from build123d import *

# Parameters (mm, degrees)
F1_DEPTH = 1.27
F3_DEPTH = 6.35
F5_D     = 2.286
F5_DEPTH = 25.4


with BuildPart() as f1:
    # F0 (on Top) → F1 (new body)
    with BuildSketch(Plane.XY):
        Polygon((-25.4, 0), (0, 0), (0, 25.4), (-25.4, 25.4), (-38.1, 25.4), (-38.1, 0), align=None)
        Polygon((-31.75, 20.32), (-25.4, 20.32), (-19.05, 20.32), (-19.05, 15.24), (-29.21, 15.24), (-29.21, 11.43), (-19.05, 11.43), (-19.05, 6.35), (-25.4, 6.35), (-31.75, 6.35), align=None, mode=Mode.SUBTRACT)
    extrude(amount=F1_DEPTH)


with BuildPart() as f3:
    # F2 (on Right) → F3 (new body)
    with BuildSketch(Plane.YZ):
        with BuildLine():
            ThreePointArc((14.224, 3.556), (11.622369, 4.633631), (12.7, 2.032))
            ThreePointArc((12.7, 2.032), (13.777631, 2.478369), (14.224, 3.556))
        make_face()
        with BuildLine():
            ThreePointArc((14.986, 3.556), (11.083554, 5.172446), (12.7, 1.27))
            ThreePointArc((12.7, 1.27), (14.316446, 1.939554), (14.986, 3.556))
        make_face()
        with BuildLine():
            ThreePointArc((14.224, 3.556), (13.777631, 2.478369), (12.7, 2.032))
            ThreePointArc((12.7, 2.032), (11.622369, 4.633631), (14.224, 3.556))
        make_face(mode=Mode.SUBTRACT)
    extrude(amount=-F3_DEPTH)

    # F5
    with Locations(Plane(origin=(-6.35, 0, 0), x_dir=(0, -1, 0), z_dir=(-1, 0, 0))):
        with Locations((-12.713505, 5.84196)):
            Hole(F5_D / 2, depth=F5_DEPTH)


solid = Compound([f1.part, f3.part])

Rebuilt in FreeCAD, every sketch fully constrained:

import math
import FreeCAD as App
import Part
import Sketcher

V = App.Vector
Q = App.Units.Quantity

doc = App.newDocument("Part")
body = doc.addObject("PartDesign::Body", "Body")

# Sketch on XY plane
sketch1 = doc.addObject("Sketcher::SketchObject", "Sketch")
body.addObject(sketch1)
sketch1.AttachmentSupport = (doc.XY_Plane, [""])
sketch1.MapMode = "FlatFace"
sketch1.addGeometry([
    Part.LineSegment(V(0, 0, 0), V(0, 25.4, 0)),  # 0
    Part.LineSegment(V(0, 25.4, 0), V(-38.1, 25.4, 0)),  # 1
    Part.LineSegment(V(-38.1, 25.4, 0), V(-38.1, 0, 0)),  # 2
    Part.LineSegment(V(-38.1, 0, 0), V(0, 0, 0)),  # 3
    Part.LineSegment(V(-31.8, 6.3, 0), V(-31.8, 20.3, 0)),  # 4
    Part.LineSegment(V(-31.8, 20.3, 0), V(-19.1, 20.3, 0)),  # 5
    Part.LineSegment(V(-19.1, 20.3, 0), V(-19.1, 15.2, 0)),  # 6
    Part.LineSegment(V(-19.1, 15.2, 0), V(-29.2, 15.2, 0)),  # 7
    Part.LineSegment(V(-29.2, 15.2, 0), V(-29.2, 11.4, 0)),  # 8
    Part.LineSegment(V(-29.2, 11.4, 0), V(-19.1, 11.4, 0)),  # 9
    Part.LineSegment(V(-19.1, 11.4, 0), V(-19.1, 6.3, 0)),  # 10
    Part.LineSegment(V(-19.1, 6.3, 0), V(-31.8, 6.3, 0)),  # 11
], False)
sketch1.addConstraint([
    Sketcher.Constraint("Coincident", 0, 2, 1, 1),
    Sketcher.Constraint("Coincident", 1, 2, 2, 1),
    Sketcher.Constraint("Coincident", 2, 2, 3, 1),
    Sketcher.Constraint("Coincident", 3, 2, 0, 1),
    Sketcher.Constraint("Coincident", 4, 2, 5, 1),
    Sketcher.Constraint("Coincident", 5, 2, 6, 1),
    Sketcher.Constraint("Coincident", 6, 2, 7, 1),
    Sketcher.Constraint("Coincident", 7, 2, 8, 1),
    Sketcher.Constraint("Coincident", 8, 2, 9, 1),
    Sketcher.Constraint("Coincident", 9, 2, 10, 1),
    Sketcher.Constraint("Coincident", 10, 2, 11, 1),
    Sketcher.Constraint("Coincident", 11, 2, 4, 1),
    Sketcher.Constraint("Vertical", 0),
    Sketcher.Constraint("Horizontal", 1),
    Sketcher.Constraint("Vertical", 2),
    Sketcher.Constraint("Horizontal", 3),
    Sketcher.Constraint("Vertical", 4),
    Sketcher.Constraint("Horizontal", 5),
    Sketcher.Constraint("Vertical", 6),
    Sketcher.Constraint("Horizontal", 7),
    Sketcher.Constraint("Vertical", 8),
    Sketcher.Constraint("Horizontal", 9),
    Sketcher.Constraint("Vertical", 10),
    Sketcher.Constraint("Horizontal", 11),
    Sketcher.Constraint("Coincident", 3, 2, -1, 1),
    Sketcher.Constraint("Vertical", 6, 2, 9, 2),
    Sketcher.Constraint("Equal", 6, 10),
    Sketcher.Constraint("DistanceY", 0, 1, 0, 2, Q("1 in")),
    Sketcher.Constraint("DistanceX", 1, 2, 1, 1, Q("1.5 in")),
    Sketcher.Constraint("DistanceX", 5, 1, 5, 2, Q("0.5 in")),
    Sketcher.Constraint("DistanceX", 7, 2, 7, 1, Q("0.4 in")),
    Sketcher.Constraint("DistanceY", 6, 2, 6, 1, Q("0.2 in")),
    Sketcher.Constraint("DistanceY", 4, 1, 4, 2, Q("0.55 in")),
    Sketcher.Constraint("DistanceY", -1, 1, 4, 2, Q("0.8 in")),
    Sketcher.Constraint("DistanceX", 4, 2, -1, 1, Q("1.25 in")),
])
pad1 = doc.addObject("PartDesign::Pad", "Pad")
body.addObject(pad1)
pad1.Profile = sketch1
pad1.Length = Q("0.05 in")
body2 = doc.addObject("PartDesign::Body", "Body001")

# Sketch on YZ plane
sketch2 = doc.addObject("Sketcher::SketchObject", "Sketch001")
body2.addObject(sketch2)
sketch2.AttachmentSupport = (doc.getObject("YZ_Plane001"), [""])
sketch2.MapMode = "FlatFace"
sketch2.addGeometry([
    Part.ArcOfCircle(Part.Circle(V(12.7, 3.6, 0), V(0, 0, 1), 2.3), math.radians(0), math.radians(270)),
    Part.ArcOfCircle(Part.Circle(V(12.7, 3.6, 0), V(0, 0, 1), 2.3), math.radians(-90), math.radians(0)),
    Part.ArcOfCircle(Part.Circle(V(12.7, 3.6, 0), V(0, 0, 1), 1.5), math.radians(0), math.radians(270)),
    Part.ArcOfCircle(Part.Circle(V(12.7, 3.6, 0), V(0, 0, 1), 1.5), math.radians(-90), math.radians(0)),
], False)
sketch2.addConstraint([
    Sketcher.Constraint("Tangent", 0, 1, 1, 2),
    Sketcher.Constraint("Coincident", 1, 1, 0, 2),
    Sketcher.Constraint("Tangent", 2, 1, 3, 2),
    Sketcher.Constraint("Coincident", 3, 1, 2, 2),
    Sketcher.Constraint("Coincident", 2, 3, 0, 3),
    Sketcher.Constraint("Horizontal", 3, 3, 0, 1),
    Sketcher.Constraint("Horizontal", 0, 1, 2, 1),
    Sketcher.Constraint("Vertical", 3, 3, 1, 1),
    Sketcher.Constraint("Vertical", 1, 1, 3, 1),
    Sketcher.Constraint("Radius", 0, Q("0.09 in")),
    Sketcher.Constraint("Radius", 2, Q("0.06 in")),
    Sketcher.Constraint("DistanceX", -1, 1, 0, 3, Q("0.5 in")),
    Sketcher.Constraint("DistanceY", -1, 1, 0, 3, Q("0.14 in")),
])
pad2 = doc.addObject("PartDesign::Pad", "Pad001")
body2.addObject(pad2)
pad2.Profile = sketch2
pad2.Length = Q("0.25 in")
pad2.Reversed = True

# Sketch on YZ plane
sketch3 = doc.addObject("Sketcher::SketchObject", "Sketch002")
body2.addObject(sketch3)
sketch3.AttachmentSupport = (doc.getObject("YZ_Plane001"), [""])
sketch3.MapMode = "FlatFace"
sketch3.AttachmentOffset = App.Placement(V(0, 0, -0.25 * 25.4), App.Rotation())
sketch3.addGeometry(Part.Circle(V(12.7, 5.8, 0), V(0, 0, 1), 1.1), False)
sketch3.addConstraint([
    Sketcher.Constraint("Diameter", 0, Q("0.09 in")),
    Sketcher.Constraint("DistanceY", -1, 1, 0, 3, 5.84196),
    Sketcher.Constraint("DistanceX", -1, 1, 0, 3, 12.713505),
])
doc.recompute()
hole = doc.addObject("PartDesign::Hole", "Hole")
body2.addObject(hole)
hole.Profile = sketch3
hole.ThreadType = "None"
hole.Diameter = Q("0.09 in")
hole.DepthType = "Dimension"
hole.Depth = Q("1 in")
hole.DrillPoint = "Flat"
hole.Reversed = True

doc.recompute()
